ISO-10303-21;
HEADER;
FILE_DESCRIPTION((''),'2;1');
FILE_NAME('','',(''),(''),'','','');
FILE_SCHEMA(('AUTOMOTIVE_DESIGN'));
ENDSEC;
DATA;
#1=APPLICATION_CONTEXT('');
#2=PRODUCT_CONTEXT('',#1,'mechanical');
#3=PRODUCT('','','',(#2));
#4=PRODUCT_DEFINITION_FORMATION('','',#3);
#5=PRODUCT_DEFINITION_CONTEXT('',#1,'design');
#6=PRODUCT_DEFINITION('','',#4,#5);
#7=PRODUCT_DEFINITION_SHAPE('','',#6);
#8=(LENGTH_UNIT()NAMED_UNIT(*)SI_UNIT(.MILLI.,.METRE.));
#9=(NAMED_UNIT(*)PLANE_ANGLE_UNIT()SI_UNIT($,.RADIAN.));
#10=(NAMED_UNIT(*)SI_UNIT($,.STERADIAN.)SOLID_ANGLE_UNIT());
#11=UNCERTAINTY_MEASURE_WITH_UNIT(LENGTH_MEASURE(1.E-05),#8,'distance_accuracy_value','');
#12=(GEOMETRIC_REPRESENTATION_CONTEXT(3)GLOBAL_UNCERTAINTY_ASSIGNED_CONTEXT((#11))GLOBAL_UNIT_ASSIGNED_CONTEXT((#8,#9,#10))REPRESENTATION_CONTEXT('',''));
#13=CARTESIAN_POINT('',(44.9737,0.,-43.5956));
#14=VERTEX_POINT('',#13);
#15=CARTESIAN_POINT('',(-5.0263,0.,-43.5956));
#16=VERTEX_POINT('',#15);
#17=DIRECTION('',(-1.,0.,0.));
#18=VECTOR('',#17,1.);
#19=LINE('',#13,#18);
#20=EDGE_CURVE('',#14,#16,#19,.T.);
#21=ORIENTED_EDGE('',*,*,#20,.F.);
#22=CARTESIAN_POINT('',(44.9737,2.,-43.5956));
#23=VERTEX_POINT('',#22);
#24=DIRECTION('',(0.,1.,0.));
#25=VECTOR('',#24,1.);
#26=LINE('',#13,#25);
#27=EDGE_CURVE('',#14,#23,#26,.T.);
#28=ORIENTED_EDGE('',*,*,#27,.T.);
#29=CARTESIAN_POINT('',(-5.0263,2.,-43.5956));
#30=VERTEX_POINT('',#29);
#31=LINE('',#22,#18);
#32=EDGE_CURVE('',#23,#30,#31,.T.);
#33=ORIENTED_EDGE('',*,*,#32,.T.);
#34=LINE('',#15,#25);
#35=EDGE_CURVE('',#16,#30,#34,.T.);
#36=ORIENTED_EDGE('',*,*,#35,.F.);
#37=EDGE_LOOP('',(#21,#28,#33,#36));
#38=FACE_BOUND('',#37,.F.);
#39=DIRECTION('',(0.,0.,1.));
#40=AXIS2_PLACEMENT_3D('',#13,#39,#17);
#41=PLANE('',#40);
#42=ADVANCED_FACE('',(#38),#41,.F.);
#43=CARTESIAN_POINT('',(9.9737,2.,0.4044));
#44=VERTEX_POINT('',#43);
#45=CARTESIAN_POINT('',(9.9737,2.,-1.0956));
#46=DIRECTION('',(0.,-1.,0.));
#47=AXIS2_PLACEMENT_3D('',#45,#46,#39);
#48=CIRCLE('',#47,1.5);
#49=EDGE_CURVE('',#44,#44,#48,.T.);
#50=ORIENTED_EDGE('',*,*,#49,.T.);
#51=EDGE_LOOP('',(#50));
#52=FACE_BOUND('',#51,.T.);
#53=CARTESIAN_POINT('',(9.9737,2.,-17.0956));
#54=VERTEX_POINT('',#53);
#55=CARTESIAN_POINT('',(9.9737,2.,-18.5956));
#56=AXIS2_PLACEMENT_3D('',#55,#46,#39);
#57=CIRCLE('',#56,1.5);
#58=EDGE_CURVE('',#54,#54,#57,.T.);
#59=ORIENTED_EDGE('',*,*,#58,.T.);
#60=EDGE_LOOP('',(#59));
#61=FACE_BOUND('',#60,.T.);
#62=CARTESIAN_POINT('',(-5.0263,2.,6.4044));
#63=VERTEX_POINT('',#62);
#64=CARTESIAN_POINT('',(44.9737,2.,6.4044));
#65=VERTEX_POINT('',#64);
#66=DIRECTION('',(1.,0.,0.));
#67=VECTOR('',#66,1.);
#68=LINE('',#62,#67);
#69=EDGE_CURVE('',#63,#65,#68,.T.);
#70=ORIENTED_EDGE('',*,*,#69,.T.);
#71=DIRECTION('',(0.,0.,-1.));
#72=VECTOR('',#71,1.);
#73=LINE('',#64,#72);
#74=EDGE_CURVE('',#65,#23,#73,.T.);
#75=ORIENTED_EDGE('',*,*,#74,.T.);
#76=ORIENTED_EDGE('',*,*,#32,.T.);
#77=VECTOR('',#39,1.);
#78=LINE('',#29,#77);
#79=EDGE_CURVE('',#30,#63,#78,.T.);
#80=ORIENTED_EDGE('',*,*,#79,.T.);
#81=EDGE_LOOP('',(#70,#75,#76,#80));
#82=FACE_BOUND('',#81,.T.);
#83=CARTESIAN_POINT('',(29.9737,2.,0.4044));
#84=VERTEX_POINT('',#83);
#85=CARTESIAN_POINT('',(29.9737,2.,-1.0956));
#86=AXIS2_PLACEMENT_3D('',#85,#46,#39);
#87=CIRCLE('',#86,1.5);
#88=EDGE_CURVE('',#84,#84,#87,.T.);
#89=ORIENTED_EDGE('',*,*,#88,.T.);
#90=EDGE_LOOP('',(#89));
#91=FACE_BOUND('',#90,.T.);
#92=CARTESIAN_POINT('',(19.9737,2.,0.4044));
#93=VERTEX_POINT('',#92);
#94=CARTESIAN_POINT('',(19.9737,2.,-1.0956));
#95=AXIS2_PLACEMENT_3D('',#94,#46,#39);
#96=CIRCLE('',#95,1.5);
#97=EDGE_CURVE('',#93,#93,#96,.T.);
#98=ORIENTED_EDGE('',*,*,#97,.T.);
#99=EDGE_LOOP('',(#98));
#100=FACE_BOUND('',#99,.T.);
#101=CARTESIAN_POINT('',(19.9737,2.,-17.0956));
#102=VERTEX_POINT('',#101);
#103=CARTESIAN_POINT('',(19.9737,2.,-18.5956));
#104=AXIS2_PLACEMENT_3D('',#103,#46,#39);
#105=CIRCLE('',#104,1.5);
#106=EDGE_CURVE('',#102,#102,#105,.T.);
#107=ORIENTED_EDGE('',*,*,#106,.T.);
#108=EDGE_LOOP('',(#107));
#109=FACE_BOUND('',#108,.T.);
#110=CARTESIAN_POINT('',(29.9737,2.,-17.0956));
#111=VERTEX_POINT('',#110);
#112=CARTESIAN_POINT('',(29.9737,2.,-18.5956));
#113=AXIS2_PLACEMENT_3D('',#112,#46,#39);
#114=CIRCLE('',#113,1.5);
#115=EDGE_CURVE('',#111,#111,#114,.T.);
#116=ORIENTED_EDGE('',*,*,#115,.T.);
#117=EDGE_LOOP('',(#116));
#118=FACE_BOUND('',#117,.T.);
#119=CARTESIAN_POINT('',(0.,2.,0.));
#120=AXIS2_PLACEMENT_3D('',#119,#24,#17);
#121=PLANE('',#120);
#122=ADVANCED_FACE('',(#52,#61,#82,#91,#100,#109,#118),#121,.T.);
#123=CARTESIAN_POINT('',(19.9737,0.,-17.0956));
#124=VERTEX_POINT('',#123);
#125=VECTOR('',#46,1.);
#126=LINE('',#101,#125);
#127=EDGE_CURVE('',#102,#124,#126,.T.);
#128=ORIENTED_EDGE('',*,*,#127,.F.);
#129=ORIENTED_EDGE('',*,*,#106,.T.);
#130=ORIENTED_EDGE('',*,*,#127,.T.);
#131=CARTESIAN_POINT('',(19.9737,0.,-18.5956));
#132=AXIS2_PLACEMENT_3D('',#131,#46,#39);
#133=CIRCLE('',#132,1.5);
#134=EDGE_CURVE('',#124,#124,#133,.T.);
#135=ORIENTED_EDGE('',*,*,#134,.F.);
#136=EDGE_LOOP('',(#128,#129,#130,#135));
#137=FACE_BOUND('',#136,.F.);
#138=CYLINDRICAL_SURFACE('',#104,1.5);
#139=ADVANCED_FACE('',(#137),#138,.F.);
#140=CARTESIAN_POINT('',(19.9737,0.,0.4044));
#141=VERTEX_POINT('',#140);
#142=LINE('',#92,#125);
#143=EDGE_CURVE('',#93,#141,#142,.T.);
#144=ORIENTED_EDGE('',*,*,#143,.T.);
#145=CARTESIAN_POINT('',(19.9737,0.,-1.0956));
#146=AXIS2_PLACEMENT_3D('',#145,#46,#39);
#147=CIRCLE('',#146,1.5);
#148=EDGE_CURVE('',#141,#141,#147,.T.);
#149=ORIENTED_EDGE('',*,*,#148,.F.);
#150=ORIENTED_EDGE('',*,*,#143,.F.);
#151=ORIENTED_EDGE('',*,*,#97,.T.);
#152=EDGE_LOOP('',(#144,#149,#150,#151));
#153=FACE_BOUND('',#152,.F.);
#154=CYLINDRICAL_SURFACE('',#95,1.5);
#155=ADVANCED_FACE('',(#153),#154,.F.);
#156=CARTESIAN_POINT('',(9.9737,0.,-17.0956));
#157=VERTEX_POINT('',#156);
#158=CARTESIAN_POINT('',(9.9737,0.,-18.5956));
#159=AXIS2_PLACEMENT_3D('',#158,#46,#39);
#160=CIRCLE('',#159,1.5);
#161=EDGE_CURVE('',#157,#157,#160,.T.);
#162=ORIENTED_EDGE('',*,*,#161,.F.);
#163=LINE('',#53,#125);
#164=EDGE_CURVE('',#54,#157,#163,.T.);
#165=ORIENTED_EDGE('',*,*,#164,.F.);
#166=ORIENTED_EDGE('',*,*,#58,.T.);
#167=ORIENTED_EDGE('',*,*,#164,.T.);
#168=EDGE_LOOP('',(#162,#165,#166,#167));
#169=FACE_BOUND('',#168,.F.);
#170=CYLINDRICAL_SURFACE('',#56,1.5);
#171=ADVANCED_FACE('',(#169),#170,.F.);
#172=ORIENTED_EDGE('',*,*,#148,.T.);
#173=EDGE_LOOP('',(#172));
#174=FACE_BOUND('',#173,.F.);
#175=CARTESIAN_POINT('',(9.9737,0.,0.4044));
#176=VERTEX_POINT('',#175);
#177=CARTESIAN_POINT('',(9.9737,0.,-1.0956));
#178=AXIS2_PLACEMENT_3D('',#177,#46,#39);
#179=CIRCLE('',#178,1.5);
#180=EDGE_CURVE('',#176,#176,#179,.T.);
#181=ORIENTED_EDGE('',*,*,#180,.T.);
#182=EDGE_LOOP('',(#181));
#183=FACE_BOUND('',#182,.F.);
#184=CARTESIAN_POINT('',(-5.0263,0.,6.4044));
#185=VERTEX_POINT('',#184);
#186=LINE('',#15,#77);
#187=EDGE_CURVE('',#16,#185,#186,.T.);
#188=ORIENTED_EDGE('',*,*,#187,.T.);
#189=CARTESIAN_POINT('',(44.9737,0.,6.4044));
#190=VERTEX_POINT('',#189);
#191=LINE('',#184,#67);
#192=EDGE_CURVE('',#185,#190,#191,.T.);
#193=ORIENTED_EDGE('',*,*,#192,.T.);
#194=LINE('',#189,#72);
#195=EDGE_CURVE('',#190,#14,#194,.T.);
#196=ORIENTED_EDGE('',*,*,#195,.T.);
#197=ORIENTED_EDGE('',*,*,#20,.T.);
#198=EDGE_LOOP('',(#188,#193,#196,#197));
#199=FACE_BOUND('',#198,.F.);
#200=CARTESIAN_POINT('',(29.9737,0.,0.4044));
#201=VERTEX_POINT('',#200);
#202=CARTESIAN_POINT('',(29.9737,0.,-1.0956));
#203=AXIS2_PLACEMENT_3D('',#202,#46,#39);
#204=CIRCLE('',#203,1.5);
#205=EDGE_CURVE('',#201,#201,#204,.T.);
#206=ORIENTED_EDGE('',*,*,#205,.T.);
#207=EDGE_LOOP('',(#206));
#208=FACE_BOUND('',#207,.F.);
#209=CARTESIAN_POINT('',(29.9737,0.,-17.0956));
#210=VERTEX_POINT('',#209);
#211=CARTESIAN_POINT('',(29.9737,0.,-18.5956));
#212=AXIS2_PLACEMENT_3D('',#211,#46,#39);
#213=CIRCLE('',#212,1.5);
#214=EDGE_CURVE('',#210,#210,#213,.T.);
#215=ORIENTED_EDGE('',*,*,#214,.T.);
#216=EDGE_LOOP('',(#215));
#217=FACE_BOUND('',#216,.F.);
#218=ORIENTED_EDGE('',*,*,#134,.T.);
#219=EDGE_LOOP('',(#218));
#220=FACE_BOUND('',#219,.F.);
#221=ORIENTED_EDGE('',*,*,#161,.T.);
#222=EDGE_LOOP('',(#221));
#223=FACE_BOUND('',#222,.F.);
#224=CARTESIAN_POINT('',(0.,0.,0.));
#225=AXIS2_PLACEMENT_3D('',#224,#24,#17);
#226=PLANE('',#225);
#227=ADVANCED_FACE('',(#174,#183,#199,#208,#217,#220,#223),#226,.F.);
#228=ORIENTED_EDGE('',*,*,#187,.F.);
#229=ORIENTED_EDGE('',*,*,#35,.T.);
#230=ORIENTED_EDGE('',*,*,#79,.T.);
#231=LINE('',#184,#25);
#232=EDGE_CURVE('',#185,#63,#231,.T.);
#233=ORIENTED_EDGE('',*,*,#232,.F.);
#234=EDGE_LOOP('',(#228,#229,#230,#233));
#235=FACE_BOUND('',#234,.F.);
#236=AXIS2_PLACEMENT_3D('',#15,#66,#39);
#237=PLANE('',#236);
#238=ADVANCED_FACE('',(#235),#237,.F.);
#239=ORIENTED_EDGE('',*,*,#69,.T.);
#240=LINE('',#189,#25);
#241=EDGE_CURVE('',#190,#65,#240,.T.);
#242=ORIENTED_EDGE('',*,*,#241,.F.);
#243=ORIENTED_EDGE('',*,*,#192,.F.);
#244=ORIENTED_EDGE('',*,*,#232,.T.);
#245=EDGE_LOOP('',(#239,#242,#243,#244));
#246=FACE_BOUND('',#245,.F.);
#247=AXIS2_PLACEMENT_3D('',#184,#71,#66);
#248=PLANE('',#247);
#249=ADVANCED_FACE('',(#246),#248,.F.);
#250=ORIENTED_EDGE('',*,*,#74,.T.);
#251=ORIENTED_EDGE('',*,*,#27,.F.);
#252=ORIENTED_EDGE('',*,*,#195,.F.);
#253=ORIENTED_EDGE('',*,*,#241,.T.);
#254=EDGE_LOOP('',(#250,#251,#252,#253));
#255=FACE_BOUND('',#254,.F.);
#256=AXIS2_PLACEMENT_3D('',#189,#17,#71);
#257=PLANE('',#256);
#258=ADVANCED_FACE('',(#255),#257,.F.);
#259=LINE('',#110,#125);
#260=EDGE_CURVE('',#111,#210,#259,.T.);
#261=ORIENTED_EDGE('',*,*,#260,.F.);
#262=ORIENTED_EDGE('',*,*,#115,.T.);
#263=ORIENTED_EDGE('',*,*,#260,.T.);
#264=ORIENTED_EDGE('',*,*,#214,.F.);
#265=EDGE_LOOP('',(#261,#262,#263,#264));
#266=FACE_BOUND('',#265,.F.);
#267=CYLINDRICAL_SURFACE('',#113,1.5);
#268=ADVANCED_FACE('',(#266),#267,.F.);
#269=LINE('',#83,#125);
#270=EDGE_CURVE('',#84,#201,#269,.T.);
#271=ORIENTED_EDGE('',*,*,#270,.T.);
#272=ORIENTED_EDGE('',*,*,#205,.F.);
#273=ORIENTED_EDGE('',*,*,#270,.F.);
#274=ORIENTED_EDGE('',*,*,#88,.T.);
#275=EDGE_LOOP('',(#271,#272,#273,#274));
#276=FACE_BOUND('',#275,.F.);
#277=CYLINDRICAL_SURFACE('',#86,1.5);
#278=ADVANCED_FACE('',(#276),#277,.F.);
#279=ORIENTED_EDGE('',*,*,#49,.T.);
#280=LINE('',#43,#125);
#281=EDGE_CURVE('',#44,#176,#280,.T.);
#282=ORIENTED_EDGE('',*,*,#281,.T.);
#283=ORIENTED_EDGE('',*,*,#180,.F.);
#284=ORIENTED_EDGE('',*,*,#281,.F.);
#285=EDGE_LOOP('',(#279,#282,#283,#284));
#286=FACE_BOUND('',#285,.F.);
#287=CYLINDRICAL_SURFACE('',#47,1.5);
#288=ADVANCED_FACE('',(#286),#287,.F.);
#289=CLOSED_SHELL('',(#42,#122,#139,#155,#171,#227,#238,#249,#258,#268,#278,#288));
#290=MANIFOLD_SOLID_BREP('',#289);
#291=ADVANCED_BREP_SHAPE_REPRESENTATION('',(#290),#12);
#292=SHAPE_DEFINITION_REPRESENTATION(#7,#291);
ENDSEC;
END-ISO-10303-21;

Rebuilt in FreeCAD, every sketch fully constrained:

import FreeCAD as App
import Part
import Sketcher
Q = App.Units.Quantity


def add_polygon(sketch, points):
    """Adds a closed chain of lines whose ends are joined by coincident constraints."""
    first, n = sketch.GeometryCount, len(points)
    for a, b in zip(points, points[1:] + points[:1]):
        sketch.addGeometry(Part.LineSegment(App.Vector(*a, 0), App.Vector(*b, 0)), False)
    for i in range(n):
        sketch.addConstraint(Sketcher.Constraint("Coincident", first + i, 2, first + (i + 1) % n, 1))

doc = App.newDocument("Part")
params = doc.addObject("Spreadsheet::Sheet", "Params")
for row, (alias, value) in enumerate([
    ("sketch1_width", "50 mm"),
    ("pad1_length", "2 mm"),
    ("sketch2_diameter", "3 mm"),
    ("hole_diameter", "3 mm"),
    ("hole_depth", "2 mm"),
], start=1):
    params.set(f"A{row}", alias)
    params.set(f"B{row}", "=" + value)
    params.setAlias(f"B{row}", alias)

body = doc.addObject("PartDesign::Body", "Body")

# Sketch on XZ plane
sketch1 = body.newObject("Sketcher::SketchObject", "Sketch")
sketch1.AttachmentSupport = (doc.getObject("XZ_Plane"), [""])
sketch1.MapMode = "FlatFace"
add_polygon(sketch1, [(-5, -44), (-5, 6), (45, 6), (45, -44)])  # lines 0-3
sketch1.addConstraint([
    Sketcher.Constraint("Vertical", 0),
    Sketcher.Constraint("Horizontal", 1),
    Sketcher.Constraint("Vertical", 2),
    Sketcher.Constraint("Horizontal", 3),
    Sketcher.Constraint("Equal", 3, 0),
    Sketcher.Constraint("DistanceX", 1, 1, 1, 2, Q("50 mm")),
    Sketcher.Constraint("DistanceX", 0, 2, -1, 1, Q("5.0263 mm")),
    Sketcher.Constraint("DistanceY", -1, 1, 0, 2, Q("6.4044 mm")),
])
sketch1.setExpression("Constraints[9]", "Params.sketch1_width")
pad1 = body.newObject("PartDesign::Pad", "Pad")
pad1.Profile = sketch1
pad1.setExpression("Length", "Params.pad1_length")
pad1.Reversed = True

# Sketch on XZ plane
sketch2 = body.newObject("Sketcher::SketchObject", "Sketch001")
sketch2.AttachmentSupport = (doc.getObject("XZ_Plane"), [""])
sketch2.MapMode = "FlatFace"
sketch2.AttachmentOffset = App.Placement(App.Vector(0, 0, -2), App.Rotation())
sketch2.addGeometry([
    Part.Circle(App.Vector(10, -1.1, 0), App.Vector(0, 0, 1), 1.5),  # 0
    Part.Circle(App.Vector(20, -1.1, 0), App.Vector(0, 0, 1), 1.5),  # 1
    Part.Circle(App.Vector(30, -1.1, 0), App.Vector(0, 0, 1), 1.5),  # 2
    Part.Circle(App.Vector(10, -18.6, 0), App.Vector(0, 0, 1), 1.5),  # 3
    Part.Circle(App.Vector(20, -18.6, 0), App.Vector(0, 0, 1), 1.5),  # 4
    Part.Circle(App.Vector(30, -18.6, 0), App.Vector(0, 0, 1), 1.5),  # 5
], False)
sketch2.addConstraint([
    Sketcher.Constraint("Equal", 0, 1),
    Sketcher.Constraint("Equal", 1, 2),
    Sketcher.Constraint("Equal", 2, 3),
    Sketcher.Constraint("Equal", 3, 4),
    Sketcher.Constraint("Equal", 4, 5),
    Sketcher.Constraint("Horizontal", 0, 3, 1, 3),
    Sketcher.Constraint("Horizontal", 1, 3, 2, 3),
    Sketcher.Constraint("Horizontal", 3, 3, 4, 3),
    Sketcher.Constraint("Horizontal", 4, 3, 5, 3),
    Sketcher.Constraint("Vertical", 0, 3, 3, 3),
    Sketcher.Constraint("Vertical", 1, 3, 4, 3),
    Sketcher.Constraint("Vertical", 2, 3, 5, 3),
    Sketcher.Constraint("Diameter", 0, Q("3 mm")),
    Sketcher.Constraint("DistanceX", 0, 3, 1, 3, Q("10 mm")),
    Sketcher.Constraint("DistanceX", 1, 3, 2, 3, Q("10 mm")),
    Sketcher.Constraint("DistanceY", 3, 3, 0, 3, Q("17.5 mm")),
    Sketcher.Constraint("DistanceX", -1, 1, 0, 3, Q("9.9737 mm")),
    Sketcher.Constraint("DistanceY", 0, 3, -1, 1, Q("1.0956 mm")),
])
sketch2.setExpression("Constraints[12]", "Params.sketch2_diameter")
doc.recompute()
hole = body.newObject("PartDesign::Hole", "Hole")
hole.Profile = sketch2
hole.ThreadType = "None"
hole.setExpression("Diameter", "Params.hole_diameter")
hole.DepthType = "Dimension"
hole.setExpression("Depth", "Params.hole_depth")
hole.DrillPoint = "Flat"
hole.Reversed = True

doc.recompute()
